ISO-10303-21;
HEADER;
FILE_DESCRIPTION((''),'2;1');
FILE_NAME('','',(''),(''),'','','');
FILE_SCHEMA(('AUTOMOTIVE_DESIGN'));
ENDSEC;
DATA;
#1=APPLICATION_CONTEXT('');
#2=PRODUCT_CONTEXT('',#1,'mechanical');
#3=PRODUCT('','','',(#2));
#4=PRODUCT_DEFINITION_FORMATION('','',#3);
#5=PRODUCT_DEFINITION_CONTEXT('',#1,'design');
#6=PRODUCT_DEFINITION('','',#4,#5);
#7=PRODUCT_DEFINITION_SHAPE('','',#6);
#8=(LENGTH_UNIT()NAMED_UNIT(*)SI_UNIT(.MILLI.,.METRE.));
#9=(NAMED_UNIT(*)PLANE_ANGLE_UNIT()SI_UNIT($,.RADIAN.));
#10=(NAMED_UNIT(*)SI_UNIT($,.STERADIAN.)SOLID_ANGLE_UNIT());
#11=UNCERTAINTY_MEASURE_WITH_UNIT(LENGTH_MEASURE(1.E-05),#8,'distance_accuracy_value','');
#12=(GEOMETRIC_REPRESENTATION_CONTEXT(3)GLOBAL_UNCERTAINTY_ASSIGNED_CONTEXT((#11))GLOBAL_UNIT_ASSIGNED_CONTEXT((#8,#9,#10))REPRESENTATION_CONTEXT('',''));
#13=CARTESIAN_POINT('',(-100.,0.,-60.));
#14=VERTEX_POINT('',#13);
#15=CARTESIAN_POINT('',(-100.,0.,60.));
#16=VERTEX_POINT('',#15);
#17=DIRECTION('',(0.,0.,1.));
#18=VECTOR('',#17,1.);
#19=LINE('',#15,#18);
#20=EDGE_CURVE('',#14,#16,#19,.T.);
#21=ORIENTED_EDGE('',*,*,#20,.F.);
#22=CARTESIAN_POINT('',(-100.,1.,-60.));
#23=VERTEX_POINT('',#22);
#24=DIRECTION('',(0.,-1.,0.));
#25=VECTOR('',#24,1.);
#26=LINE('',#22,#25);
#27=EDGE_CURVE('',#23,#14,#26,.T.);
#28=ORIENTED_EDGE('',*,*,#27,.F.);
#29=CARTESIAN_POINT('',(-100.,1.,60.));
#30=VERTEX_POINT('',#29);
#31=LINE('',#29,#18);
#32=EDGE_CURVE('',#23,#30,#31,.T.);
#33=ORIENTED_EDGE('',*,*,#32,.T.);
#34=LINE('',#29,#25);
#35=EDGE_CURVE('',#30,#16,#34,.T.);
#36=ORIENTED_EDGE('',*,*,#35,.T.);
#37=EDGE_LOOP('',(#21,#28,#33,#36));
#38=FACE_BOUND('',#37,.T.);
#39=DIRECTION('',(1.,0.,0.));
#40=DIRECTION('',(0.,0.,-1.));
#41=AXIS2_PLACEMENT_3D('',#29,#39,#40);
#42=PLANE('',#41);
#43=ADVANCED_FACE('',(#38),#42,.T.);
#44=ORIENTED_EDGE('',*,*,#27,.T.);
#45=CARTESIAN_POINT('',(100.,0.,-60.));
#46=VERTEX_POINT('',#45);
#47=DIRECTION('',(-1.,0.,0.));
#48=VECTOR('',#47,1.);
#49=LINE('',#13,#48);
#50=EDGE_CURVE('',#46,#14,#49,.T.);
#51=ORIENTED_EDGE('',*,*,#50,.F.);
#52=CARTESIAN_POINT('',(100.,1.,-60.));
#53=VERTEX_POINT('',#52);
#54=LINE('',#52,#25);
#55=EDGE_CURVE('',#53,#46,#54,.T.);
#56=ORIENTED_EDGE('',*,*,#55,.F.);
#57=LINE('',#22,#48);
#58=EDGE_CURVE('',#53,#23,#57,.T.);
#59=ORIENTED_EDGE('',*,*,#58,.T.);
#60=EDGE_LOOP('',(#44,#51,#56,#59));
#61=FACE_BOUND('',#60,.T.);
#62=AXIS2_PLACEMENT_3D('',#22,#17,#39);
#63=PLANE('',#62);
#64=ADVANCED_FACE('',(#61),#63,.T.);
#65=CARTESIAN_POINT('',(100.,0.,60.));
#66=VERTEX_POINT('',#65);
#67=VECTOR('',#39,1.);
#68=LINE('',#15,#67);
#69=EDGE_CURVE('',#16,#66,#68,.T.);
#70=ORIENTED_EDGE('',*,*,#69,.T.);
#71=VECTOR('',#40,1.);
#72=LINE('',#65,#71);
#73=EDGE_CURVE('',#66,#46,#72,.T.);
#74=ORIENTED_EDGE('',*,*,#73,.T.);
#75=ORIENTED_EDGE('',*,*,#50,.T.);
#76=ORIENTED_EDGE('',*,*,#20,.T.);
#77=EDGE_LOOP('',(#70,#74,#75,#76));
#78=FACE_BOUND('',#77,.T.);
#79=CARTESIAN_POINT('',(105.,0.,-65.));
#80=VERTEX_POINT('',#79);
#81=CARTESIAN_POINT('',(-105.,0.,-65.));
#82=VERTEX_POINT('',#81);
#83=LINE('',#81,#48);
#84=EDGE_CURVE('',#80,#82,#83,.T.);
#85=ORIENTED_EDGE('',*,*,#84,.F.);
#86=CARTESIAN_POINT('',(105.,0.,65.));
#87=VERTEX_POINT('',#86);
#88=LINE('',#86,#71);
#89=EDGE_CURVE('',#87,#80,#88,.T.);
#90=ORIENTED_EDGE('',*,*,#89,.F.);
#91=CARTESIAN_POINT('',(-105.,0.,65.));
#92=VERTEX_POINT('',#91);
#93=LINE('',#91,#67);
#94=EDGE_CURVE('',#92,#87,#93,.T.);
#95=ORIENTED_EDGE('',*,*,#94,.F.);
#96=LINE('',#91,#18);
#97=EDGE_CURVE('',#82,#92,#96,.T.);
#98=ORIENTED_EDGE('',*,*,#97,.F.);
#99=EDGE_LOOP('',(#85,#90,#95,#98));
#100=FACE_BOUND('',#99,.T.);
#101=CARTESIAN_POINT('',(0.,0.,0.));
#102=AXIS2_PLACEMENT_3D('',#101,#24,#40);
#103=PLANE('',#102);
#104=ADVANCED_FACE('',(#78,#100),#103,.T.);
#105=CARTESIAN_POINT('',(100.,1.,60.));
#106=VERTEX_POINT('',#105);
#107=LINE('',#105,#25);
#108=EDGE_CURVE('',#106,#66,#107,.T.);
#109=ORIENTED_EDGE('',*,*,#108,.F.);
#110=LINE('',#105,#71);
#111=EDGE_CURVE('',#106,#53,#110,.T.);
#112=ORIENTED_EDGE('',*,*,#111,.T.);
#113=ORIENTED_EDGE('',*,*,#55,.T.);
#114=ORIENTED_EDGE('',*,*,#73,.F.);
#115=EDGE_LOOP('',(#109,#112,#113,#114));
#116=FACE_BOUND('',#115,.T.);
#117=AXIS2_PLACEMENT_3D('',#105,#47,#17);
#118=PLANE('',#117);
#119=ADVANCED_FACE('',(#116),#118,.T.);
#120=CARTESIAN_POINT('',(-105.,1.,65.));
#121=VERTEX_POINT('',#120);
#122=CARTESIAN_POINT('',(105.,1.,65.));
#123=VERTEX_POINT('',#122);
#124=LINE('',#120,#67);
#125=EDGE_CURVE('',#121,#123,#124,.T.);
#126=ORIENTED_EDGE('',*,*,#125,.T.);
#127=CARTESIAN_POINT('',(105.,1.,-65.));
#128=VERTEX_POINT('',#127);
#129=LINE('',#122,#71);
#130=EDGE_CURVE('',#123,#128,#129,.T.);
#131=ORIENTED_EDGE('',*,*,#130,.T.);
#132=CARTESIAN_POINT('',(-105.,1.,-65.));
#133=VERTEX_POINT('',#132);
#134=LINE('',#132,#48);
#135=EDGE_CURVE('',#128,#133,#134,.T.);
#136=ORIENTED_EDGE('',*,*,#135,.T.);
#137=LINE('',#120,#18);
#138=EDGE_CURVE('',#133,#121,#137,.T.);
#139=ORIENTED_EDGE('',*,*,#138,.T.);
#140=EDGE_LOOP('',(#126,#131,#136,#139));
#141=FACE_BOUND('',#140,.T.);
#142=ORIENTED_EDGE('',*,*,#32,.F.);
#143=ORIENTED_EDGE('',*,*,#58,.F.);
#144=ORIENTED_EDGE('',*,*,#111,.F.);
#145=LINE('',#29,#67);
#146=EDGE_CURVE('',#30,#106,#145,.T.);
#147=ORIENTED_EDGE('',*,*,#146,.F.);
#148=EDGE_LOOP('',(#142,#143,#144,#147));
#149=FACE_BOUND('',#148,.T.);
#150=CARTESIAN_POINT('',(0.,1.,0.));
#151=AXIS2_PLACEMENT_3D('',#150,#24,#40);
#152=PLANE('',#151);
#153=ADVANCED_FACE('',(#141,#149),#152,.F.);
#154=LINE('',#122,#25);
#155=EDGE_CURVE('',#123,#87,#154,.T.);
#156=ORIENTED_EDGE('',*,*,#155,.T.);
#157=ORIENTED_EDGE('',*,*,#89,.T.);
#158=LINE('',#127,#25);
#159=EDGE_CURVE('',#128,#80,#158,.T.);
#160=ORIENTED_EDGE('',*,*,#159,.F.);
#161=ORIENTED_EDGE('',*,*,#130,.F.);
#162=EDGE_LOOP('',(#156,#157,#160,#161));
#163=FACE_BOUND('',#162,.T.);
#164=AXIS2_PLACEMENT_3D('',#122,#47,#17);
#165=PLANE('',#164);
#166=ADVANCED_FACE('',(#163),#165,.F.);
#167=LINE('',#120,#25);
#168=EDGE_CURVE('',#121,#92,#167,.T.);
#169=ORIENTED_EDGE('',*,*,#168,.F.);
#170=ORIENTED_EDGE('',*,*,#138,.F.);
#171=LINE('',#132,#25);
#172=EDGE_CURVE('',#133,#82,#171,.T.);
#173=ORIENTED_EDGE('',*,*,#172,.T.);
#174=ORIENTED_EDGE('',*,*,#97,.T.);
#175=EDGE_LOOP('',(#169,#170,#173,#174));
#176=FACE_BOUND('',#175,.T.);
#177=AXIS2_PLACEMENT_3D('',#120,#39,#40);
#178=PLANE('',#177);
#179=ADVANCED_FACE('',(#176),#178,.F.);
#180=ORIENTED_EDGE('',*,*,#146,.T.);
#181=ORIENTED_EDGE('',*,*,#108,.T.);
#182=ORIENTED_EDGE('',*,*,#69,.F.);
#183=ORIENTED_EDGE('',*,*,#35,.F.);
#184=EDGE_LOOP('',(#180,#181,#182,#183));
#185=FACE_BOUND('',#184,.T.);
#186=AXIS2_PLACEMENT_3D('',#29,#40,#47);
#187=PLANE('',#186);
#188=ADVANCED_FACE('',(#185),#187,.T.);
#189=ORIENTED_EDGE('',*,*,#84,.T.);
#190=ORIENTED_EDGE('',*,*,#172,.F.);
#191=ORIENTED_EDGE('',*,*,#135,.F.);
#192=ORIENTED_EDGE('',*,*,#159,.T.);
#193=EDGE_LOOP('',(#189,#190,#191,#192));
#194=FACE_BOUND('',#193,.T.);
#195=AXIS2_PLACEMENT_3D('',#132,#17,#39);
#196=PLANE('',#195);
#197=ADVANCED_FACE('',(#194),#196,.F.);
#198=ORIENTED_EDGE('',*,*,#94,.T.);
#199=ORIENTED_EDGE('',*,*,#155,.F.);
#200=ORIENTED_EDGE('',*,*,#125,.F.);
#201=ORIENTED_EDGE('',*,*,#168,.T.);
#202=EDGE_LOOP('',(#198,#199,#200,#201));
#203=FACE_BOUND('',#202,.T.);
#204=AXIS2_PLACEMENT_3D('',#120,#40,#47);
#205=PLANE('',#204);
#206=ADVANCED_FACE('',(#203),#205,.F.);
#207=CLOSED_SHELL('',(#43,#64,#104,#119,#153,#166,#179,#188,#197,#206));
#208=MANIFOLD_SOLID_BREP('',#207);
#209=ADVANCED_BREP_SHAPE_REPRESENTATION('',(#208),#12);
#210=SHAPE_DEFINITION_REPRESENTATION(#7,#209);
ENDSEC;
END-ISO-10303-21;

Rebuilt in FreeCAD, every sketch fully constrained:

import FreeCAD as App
import Part
import Sketcher
from FreeCAD import Vector

doc = App.newDocument("Part")
body = doc.addObject("PartDesign::Body", "Body")

sketch1 = body.newObject("Sketcher::SketchObject", "Sketch")
sketch1.AttachmentSupport = (doc.getObject("XZ_Plane"), [""])
sketch1.MapMode = "FlatFace"
sketch1.addGeometry([
    Part.LineSegment(Vector(-105, -65, 0), Vector(-105, 65, 0)),
    Part.LineSegment(Vector(-105, 65, 0), Vector(105, 65, 0)),
    Part.LineSegment(Vector(105, 65, 0), Vector(105, -65, 0)),
    Part.LineSegment(Vector(105, -65, 0), Vector(-105, -65, 0)),
    Part.LineSegment(Vector(100, 60, 0), Vector(-100, 60, 0)),
    Part.LineSegment(Vector(-100, 60, 0), Vector(-100, -60, 0)),
    Part.LineSegment(Vector(-100, -60, 0), Vector(100, -60, 0)),
    Part.LineSegment(Vector(100, -60, 0), Vector(100, 60, 0)),
], False)
sketch1.addConstraint([
    Sketcher.Constraint("Coincident", 0, 2, 1, 1),
    Sketcher.Constraint("Coincident", 1, 2, 2, 1),
    Sketcher.Constraint("Coincident", 2, 2, 3, 1),
    Sketcher.Constraint("Coincident", 3, 2, 0, 1),
    Sketcher.Constraint("Coincident", 4, 2, 5, 1),
    Sketcher.Constraint("Coincident", 5, 2, 6, 1),
    Sketcher.Constraint("Coincident", 6, 2, 7, 1),
    Sketcher.Constraint("Coincident", 7, 2, 4, 1),
    Sketcher.Constraint("Vertical", 0),
    Sketcher.Constraint("Horizontal", 1),
    Sketcher.Constraint("Vertical", 2),
    Sketcher.Constraint("Horizontal", 3),
    Sketcher.Constraint("Horizontal", 4),
    Sketcher.Constraint("Vertical", 5),
    Sketcher.Constraint("Horizontal", 6),
    Sketcher.Constraint("Vertical", 7),
    Sketcher.Constraint("Symmetric", 0, 2, 2, 2, -1, 1),
    Sketcher.Constraint("Symmetric", 4, 2, 6, 2, -1, 1),
    Sketcher.Constraint("DistanceX", 1, 1, 1, 2, 210.0),
    Sketcher.Constraint("DistanceX", 4, 2, 4, 1, 200.0),
    Sketcher.Constraint("DistanceY", 0, 1, 0, 2, 130.0),
    Sketcher.Constraint("DistanceY", 5, 2, 5, 1, 120.0),
])
pad1 = body.newObject("PartDesign::Pad", "Pad")
pad1.Profile = sketch1
pad1.Length = 1
pad1.Reversed = True

doc.recompute()
